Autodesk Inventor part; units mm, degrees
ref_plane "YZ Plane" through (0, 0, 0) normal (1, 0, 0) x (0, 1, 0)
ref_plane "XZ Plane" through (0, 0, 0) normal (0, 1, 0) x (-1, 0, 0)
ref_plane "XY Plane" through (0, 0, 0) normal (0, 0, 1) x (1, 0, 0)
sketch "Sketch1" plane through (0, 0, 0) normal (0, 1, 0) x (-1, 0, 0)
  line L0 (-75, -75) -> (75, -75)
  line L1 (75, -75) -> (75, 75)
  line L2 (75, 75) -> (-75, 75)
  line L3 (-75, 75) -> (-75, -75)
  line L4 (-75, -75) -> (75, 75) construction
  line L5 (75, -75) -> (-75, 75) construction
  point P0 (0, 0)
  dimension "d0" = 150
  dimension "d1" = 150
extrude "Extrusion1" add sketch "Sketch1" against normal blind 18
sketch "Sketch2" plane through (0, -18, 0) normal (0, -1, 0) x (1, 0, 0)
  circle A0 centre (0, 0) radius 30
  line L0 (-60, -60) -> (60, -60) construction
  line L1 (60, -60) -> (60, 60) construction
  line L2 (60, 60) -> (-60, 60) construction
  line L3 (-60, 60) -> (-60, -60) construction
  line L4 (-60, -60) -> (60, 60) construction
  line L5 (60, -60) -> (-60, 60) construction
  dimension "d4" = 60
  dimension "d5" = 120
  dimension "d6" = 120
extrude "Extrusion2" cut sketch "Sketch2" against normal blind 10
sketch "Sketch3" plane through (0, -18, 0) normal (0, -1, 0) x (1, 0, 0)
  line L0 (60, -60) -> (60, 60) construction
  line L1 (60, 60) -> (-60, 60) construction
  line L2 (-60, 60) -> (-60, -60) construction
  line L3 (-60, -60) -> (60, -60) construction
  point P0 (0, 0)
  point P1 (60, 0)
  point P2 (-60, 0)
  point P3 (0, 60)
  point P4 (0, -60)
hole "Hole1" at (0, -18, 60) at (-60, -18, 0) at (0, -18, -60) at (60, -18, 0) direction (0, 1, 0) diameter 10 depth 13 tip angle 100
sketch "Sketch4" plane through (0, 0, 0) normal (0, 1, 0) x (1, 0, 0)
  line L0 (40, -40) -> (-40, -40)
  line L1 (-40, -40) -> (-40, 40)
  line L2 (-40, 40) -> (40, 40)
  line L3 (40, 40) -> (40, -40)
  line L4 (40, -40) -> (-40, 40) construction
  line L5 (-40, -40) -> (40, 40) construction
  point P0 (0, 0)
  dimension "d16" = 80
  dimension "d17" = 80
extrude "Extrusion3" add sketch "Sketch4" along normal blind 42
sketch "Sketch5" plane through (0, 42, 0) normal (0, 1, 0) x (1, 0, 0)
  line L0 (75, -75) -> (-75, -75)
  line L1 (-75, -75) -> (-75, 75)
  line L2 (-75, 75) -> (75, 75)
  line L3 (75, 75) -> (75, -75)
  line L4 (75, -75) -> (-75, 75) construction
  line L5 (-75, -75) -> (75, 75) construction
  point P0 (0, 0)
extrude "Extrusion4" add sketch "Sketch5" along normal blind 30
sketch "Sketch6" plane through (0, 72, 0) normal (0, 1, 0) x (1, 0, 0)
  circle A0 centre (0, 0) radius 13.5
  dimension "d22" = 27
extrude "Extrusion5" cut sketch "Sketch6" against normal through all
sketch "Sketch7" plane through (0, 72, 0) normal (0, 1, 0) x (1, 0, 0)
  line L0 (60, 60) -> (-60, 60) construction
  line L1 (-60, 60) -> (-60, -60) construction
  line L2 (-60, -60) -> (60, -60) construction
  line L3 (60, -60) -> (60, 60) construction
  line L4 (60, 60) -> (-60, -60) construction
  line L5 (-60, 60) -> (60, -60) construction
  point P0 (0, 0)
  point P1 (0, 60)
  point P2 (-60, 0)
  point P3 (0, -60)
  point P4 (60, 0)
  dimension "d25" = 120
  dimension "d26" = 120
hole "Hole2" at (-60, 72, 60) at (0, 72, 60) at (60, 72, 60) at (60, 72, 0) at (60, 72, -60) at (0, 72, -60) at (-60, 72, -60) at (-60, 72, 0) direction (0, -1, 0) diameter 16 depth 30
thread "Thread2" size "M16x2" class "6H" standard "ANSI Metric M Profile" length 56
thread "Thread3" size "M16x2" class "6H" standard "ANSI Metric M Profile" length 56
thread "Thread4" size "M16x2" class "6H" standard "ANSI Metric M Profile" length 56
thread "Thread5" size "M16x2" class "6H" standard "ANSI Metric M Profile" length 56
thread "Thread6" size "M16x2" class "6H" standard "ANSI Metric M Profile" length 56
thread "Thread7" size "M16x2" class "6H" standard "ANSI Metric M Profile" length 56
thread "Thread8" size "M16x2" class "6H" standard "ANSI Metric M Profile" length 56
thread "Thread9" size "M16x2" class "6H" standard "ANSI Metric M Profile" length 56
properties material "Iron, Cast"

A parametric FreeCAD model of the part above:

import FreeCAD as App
import Part
import Sketcher
Q = App.Units.Quantity


def add_polygon(sketch, points):
    """Adds a closed chain of lines whose ends are joined by coincident constraints."""
    first, n = sketch.GeometryCount, len(points)
    for a, b in zip(points, points[1:] + points[:1]):
        sketch.addGeometry(Part.LineSegment(App.Vector(*a, 0), App.Vector(*b, 0)), False)
    for i in range(n):
        sketch.addConstraint(Sketcher.Constraint("Coincident", first + i, 2, first + (i + 1) % n, 1))

doc = App.newDocument("Part")
body = doc.addObject("PartDesign::Body", "Body")

# Sketch on XZ plane
sketch1 = body.newObject("Sketcher::SketchObject", "Sketch")
sketch1.AttachmentSupport = (doc.getObject("XZ_Plane"), [""])
sketch1.MapMode = "FlatFace"
add_polygon(sketch1, [(75, 75), (75, -75), (-75, -75), (-75, 75)])  # lines 0-3
sketch1.addConstraint(Sketcher.Constraint("Vertical", 0))
sketch1.addConstraint(Sketcher.Constraint("Horizontal", 1))
sketch1.addConstraint(Sketcher.Constraint("Vertical", 2))
sketch1.addConstraint(Sketcher.Constraint("Horizontal", 3))
sketch1.addConstraint(Sketcher.Constraint("Symmetric", 0, 2, 2, 2, -1, 1))
sketch1.addConstraint(Sketcher.Constraint("Equal", 3, 0))
sketch1.addConstraint(Sketcher.Constraint("DistanceX", 1, 2, 1, 1, Q("150 mm")))
pad1 = body.newObject("PartDesign::Pad", "Pad")
pad1.Profile = sketch1
pad1.Length = 18

# Sketch on XZ plane
sketch2 = body.newObject("Sketcher::SketchObject", "Sketch001")
sketch2.AttachmentSupport = (doc.getObject("XZ_Plane"), [""])
sketch2.MapMode = "FlatFace"
sketch2.AttachmentOffset = App.Placement(App.Vector(0, 0, 18), App.Rotation())
sketch2.addGeometry(Part.Circle(App.Vector(0, 0, 0), App.Vector(0, 0, 1), 30), False)
sketch2.addConstraint(Sketcher.Constraint("Coincident", 0, 3, -1, 1))
sketch2.addConstraint(Sketcher.Constraint("Diameter", 0, Q("60 mm")))
pocket1 = body.newObject("PartDesign::Pocket", "Pocket")
pocket1.Profile = sketch2
pocket1.Length = 10

# Sketch on XZ plane
sketch3 = body.newObject("Sketcher::SketchObject", "Sketch002")
sketch3.AttachmentSupport = (doc.getObject("XZ_Plane"), [""])
sketch3.MapMode = "FlatFace"
sketch3.AttachmentOffset = App.Placement(App.Vector(0, 0, 18), App.Rotation())
sketch3.addGeometry(Part.Circle(App.Vector(0, 60, 0), App.Vector(0, 0, 1), 5), False)
sketch3.addGeometry(Part.Circle(App.Vector(-60, 0, 0), App.Vector(0, 0, 1), 5), False)
sketch3.addGeometry(Part.Circle(App.Vector(0, -60, 0), App.Vector(0, 0, 1), 5), False)
sketch3.addGeometry(Part.Circle(App.Vector(60, 0, 0), App.Vector(0, 0, 1), 5), False)
sketch3.addConstraint(Sketcher.Constraint("Equal", 0, 1))
sketch3.addConstraint(Sketcher.Constraint("Equal", 1, 2))
sketch3.addConstraint(Sketcher.Constraint("Equal", 2, 3))
sketch3.addConstraint(Sketcher.Constraint("Symmetric", 0, 3, 2, 3, -1, 1))
sketch3.addConstraint(Sketcher.Constraint("Symmetric", 1, 3, 3, 3, -1, 1))
sketch3.addConstraint(Sketcher.Constraint("PointOnObject", 0, 3, -2))
sketch3.addConstraint(Sketcher.Constraint("PointOnObject", 1, 3, -1))
sketch3.addConstraint(Sketcher.Constraint("Diameter", 0, Q("10 mm")))
sketch3.addConstraint(Sketcher.Constraint("DistanceY", -1, 1, 0, 3, Q("60 mm")))
sketch3.addConstraint(Sketcher.Constraint("DistanceX", 1, 3, -1, 1, Q("60 mm")))
doc.recompute()
hole = body.newObject("PartDesign::Hole", "Hole")
hole.Profile = sketch3
hole.ThreadType = "None"
hole.Diameter = 10
hole.DepthType = "Dimension"
hole.Depth = 13
hole.DrillPoint = "Angled"
hole.DrillPointAngle = 100

# Sketch on XZ plane
sketch4 = body.newObject("Sketcher::SketchObject", "Sketch003")
sketch4.AttachmentSupport = (doc.getObject("XZ_Plane"), [""])
sketch4.MapMode = "FlatFace"
add_polygon(sketch4, [(-40, 40), (40, 40), (40, -40), (-40, -40)])  # lines 0-3
sketch4.addConstraint(Sketcher.Constraint("Horizontal", 0))
sketch4.addConstraint(Sketcher.Constraint("Vertical", 1))
sketch4.addConstraint(Sketcher.Constraint("Horizontal", 2))
sketch4.addConstraint(Sketcher.Constraint("Vertical", 3))
sketch4.addConstraint(Sketcher.Constraint("Symmetric", 0, 2, 2, 2, -1, 1))
sketch4.addConstraint(Sketcher.Constraint("Equal", 2, 1))
sketch4.addConstraint(Sketcher.Constraint("DistanceX", 0, 1, 0, 2, Q("80 mm")))
pad2 = body.newObject("PartDesign::Pad", "Pad001")
pad2.Profile = sketch4
pad2.Length = 42
pad2.Reversed = True

# Sketch on XZ plane
sketch5 = body.newObject("Sketcher::SketchObject", "Sketch004")
sketch5.AttachmentSupport = (doc.getObject("XZ_Plane"), [""])
sketch5.MapMode = "FlatFace"
sketch5.AttachmentOffset = App.Placement(App.Vector(0, 0, -42), App.Rotation())
add_polygon(sketch5, [(-75, 75), (75, 75), (75, -75), (-75, -75)])  # lines 0-3
sketch5.addConstraint(Sketcher.Constraint("Horizontal", 0))
sketch5.addConstraint(Sketcher.Constraint("Vertical", 1))
sketch5.addConstraint(Sketcher.Constraint("Horizontal", 2))
sketch5.addConstraint(Sketcher.Constraint("Vertical", 3))
sketch5.addConstraint(Sketcher.Constraint("Symmetric", 0, 2, 2, 2, -1, 1))
sketch5.addConstraint(Sketcher.Constraint("Equal", 2, 1))
sketch5.addConstraint(Sketcher.Constraint("DistanceX", 0, 1, 0, 2, Q("150 mm")))
pad3 = body.newObject("PartDesign::Pad", "Pad002")
pad3.Profile = sketch5
pad3.Length = 30
pad3.Reversed = True

# Sketch on XZ plane
sketch6 = body.newObject("Sketcher::SketchObject", "Sketch005")
sketch6.AttachmentSupport = (doc.getObject("XZ_Plane"), [""])
sketch6.MapMode = "FlatFace"
sketch6.AttachmentOffset = App.Placement(App.Vector(0, 0, -72), App.Rotation())
sketch6.addGeometry(Part.Circle(App.Vector(0, 0, 0), App.Vector(0, 0, 1), 13.5), False)
sketch6.addConstraint(Sketcher.Constraint("Coincident", 0, 3, -1, 1))
sketch6.addConstraint(Sketcher.Constraint("Diameter", 0, Q("27 mm")))
pocket2 = body.newObject("PartDesign::Pocket", "Pocket001")
pocket2.Profile = sketch6
pocket2.Type = "ThroughAll"
pocket2.Reversed = True

# Sketch on XZ plane
sketch7 = body.newObject("Sketcher::SketchObject", "Sketch006")
sketch7.AttachmentSupport = (doc.getObject("XZ_Plane"), [""])
sketch7.MapMode = "FlatFace"
sketch7.AttachmentOffset = App.Placement(App.Vector(0, 0, -72), App.Rotation())
sketch7.addGeometry(Part.Circle(App.Vector(-60, 60, 0), App.Vector(0, 0, 1), 8), False)
sketch7.addGeometry(Part.Circle(App.Vector(0, 60, 0), App.Vector(0, 0, 1), 8), False)
sketch7.addGeometry(Part.Circle(App.Vector(60, 60, 0), App.Vector(0, 0, 1), 8), False)
sketch7.addGeometry(Part.Circle(App.Vector(60, 0, 0), App.Vector(0, 0, 1), 8), False)
sketch7.addGeometry(Part.Circle(App.Vector(60, -60, 0), App.Vector(0, 0, 1), 8), False)
sketch7.addGeometry(Part.Circle(App.Vector(0, -60, 0), App.Vector(0, 0, 1), 8), False)
sketch7.addGeometry(Part.Circle(App.Vector(-60, -60, 0), App.Vector(0, 0, 1), 8), False)
sketch7.addGeometry(Part.Circle(App.Vector(-60, 0, 0), App.Vector(0, 0, 1), 8), False)
sketch7.addConstraint(Sketcher.Constraint("Equal", 0, 1))
sketch7.addConstraint(Sketcher.Constraint("Equal", 1, 2))
sketch7.addConstraint(Sketcher.Constraint("Equal", 2, 3))
sketch7.addConstraint(Sketcher.Constraint("Equal", 3, 4))
sketch7.addConstraint(Sketcher.Constraint("Equal", 4, 5))
sketch7.addConstraint(Sketcher.Constraint("Equal", 5, 6))
sketch7.addConstraint(Sketcher.Constraint("Equal", 6, 7))
sketch7.addConstraint(Sketcher.Constraint("Symmetric", 0, 3, 4, 3, -1, 1))
sketch7.addConstraint(Sketcher.Constraint("Symmetric", 1, 3, 5, 3, -1, 1))
sketch7.addConstraint(Sketcher.Constraint("Symmetric", 2, 3, 6, 3, -1, 1))
sketch7.addConstraint(Sketcher.Constraint("Symmetric", 3, 3, 7, 3, -1, 1))
sketch7.addConstraint(Sketcher.Constraint("Symmetric", 0, 3, 2, 3, -2))
sketch7.addConstraint(Sketcher.Constraint("PointOnObject", 1, 3, -2))
sketch7.addConstraint(Sketcher.Constraint("PointOnObject", 3, 3, -1))
sketch7.addConstraint(Sketcher.Constraint("Horizontal", 0, 3, 1, 3))
sketch7.addConstraint(Sketcher.Constraint("Vertical", 2, 3, 3, 3))
sketch7.addConstraint(Sketcher.Constraint("Diameter", 0, Q("16 mm")))
sketch7.addConstraint(Sketcher.Constraint("DistanceX", 0, 3, -1, 1, Q("60 mm")))
sketch7.addConstraint(Sketcher.Constraint("DistanceY", -1, 1, 0, 3, Q("60 mm")))
doc.recompute()
hole2 = body.newObject("PartDesign::Hole", "Hole001")
hole2.Profile = sketch7
hole2.ThreadType = "None"
hole2.Diameter = 16
hole2.DepthType = "Dimension"
hole2.Depth = 30
hole2.DrillPoint = "Flat"
hole2.Reversed = True

doc.recompute()
